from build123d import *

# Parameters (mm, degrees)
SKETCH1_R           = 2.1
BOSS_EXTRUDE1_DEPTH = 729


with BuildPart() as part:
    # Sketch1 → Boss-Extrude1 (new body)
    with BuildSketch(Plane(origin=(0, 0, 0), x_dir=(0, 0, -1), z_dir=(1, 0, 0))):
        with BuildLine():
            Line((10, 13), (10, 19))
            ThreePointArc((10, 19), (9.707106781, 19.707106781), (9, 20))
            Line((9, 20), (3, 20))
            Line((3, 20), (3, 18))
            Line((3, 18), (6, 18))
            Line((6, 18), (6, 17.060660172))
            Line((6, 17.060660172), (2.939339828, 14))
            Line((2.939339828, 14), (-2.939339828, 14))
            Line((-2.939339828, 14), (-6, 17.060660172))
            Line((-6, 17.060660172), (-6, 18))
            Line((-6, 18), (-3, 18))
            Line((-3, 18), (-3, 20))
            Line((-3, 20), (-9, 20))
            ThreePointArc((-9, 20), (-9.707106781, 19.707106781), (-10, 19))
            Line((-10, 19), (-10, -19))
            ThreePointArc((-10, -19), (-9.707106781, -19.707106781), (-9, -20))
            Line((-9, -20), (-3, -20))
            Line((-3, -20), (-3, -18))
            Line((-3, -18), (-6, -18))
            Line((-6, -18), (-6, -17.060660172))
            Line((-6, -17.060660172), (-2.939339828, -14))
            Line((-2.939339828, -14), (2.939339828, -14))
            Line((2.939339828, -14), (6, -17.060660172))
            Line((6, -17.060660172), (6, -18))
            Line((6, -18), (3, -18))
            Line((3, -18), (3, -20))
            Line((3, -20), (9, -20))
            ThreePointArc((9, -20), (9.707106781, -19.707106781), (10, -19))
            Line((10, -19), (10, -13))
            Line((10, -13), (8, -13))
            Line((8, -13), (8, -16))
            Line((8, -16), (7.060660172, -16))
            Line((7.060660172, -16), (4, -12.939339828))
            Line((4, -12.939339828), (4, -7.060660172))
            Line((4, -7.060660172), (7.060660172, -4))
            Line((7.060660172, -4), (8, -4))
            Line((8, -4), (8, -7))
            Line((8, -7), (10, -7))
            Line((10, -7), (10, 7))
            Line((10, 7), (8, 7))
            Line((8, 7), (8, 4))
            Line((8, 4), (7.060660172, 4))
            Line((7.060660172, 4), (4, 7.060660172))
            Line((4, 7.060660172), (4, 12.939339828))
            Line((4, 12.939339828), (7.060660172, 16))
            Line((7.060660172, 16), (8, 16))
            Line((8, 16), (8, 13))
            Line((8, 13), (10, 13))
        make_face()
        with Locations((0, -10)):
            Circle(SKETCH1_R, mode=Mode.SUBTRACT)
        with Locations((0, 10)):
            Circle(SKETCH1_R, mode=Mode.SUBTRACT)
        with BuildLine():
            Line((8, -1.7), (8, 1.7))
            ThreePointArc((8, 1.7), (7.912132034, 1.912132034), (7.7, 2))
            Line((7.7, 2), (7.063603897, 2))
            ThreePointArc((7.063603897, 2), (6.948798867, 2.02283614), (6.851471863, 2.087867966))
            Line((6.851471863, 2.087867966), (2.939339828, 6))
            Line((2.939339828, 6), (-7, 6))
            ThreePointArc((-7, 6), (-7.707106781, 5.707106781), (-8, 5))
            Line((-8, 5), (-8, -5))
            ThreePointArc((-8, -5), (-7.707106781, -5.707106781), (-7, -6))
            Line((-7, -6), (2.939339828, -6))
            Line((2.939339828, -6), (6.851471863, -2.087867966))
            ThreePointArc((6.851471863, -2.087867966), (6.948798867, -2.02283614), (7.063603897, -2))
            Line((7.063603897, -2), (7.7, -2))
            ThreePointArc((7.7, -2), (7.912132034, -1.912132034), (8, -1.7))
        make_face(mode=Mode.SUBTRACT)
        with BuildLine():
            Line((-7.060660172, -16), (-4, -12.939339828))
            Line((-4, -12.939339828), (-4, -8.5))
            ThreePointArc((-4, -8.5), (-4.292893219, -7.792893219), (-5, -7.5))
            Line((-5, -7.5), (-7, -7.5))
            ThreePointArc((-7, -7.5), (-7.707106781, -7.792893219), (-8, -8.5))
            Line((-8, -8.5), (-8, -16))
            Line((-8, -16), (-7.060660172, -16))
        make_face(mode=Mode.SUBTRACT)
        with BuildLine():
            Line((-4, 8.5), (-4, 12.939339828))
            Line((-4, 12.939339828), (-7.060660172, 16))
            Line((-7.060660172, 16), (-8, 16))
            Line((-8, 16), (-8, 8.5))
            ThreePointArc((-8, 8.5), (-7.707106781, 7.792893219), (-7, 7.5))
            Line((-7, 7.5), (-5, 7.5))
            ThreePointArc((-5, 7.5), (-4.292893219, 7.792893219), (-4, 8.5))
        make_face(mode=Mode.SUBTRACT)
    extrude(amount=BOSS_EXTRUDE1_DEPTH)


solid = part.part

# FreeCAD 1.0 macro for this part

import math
import FreeCAD as App
import Part
import Sketcher

doc = App.newDocument("Part")
body = doc.addObject("PartDesign::Body", "Body")

sketch1 = doc.addObject("Sketcher::SketchObject", "Sketch")
body.addObject(sketch1)
sketch1.AttachmentSupport = (doc.YZ_Plane, [""])
sketch1.MapMode = "FlatFace"
sketch1.addGeometry(Part.LineSegment(App.Vector(13, -10, 0), App.Vector(19, -10, 0)), False)
sketch1.addGeometry(Part.ArcOfCircle(Part.Circle(App.Vector(19, -9, 0), App.Vector(0, 0, 1), 1), math.radians(-90), math.radians(0)), False)
sketch1.addGeometry(Part.LineSegment(App.Vector(20, -9, 0), App.Vector(20, -3, 0)), False)
sketch1.addGeometry(Part.LineSegment(App.Vector(20, -3, 0), App.Vector(18, -3, 0)), False)
sketch1.addGeometry(Part.LineSegment(App.Vector(18, -3, 0), App.Vector(18, -6, 0)), False)
sketch1.addGeometry(Part.LineSegment(App.Vector(18, -6, 0), App.Vector(17.06, -6, 0)), False)
sketch1.addGeometry(Part.LineSegment(App.Vector(17.06, -6, 0), App.Vector(14, -2.94, 0)), False)
sketch1.addGeometry(Part.LineSegment(App.Vector(14, -2.94, 0), App.Vector(14, 2.94, 0)), False)
sketch1.addGeometry(Part.LineSegment(App.Vector(14, 2.94, 0), App.Vector(17.06, 6, 0)), False)
sketch1.addGeometry(Part.LineSegment(App.Vector(17.06, 6, 0), App.Vector(18, 6, 0)), False)
sketch1.addGeometry(Part.LineSegment(App.Vector(18, 6, 0), App.Vector(18, 3, 0)), False)
sketch1.addGeometry(Part.LineSegment(App.Vector(18, 3, 0), App.Vector(20, 3, 0)), False)
sketch1.addGeometry(Part.LineSegment(App.Vector(20, 3, 0), App.Vector(20, 9, 0)), False)
sketch1.addGeometry(Part.ArcOfCircle(Part.Circle(App.Vector(19, 9, 0), App.Vector(0, 0, 1), 1), math.radians(0), math.radians(90)), False)
sketch1.addGeometry(Part.LineSegment(App.Vector(19, 10, 0), App.Vector(-19, 10, 0)), False)
sketch1.addGeometry(Part.ArcOfCircle(Part.Circle(App.Vector(-19, 9, 0), App.Vector(0, 0, 1), 1), math.radians(90), math.radians(180)), False)
sketch1.addGeometry(Part.LineSegment(App.Vector(-20, 9, 0), App.Vector(-20, 3, 0)), False)
sketch1.addGeometry(Part.LineSegment(App.Vector(-20, 3, 0), App.Vector(-18, 3, 0)), False)
sketch1.addGeometry(Part.LineSegment(App.Vector(-18, 3, 0), App.Vector(-18, 6, 0)), False)
sketch1.addGeometry(Part.LineSegment(App.Vector(-18, 6, 0), App.Vector(-17.06, 6, 0)), False)
sketch1.addGeometry(Part.LineSegment(App.Vector(-17.06, 6, 0), App.Vector(-14, 2.94, 0)), False)
sketch1.addGeometry(Part.LineSegment(App.Vector(-14, 2.94, 0), App.Vector(-14, -2.94, 0)), False)
sketch1.addGeometry(Part.LineSegment(App.Vector(-14, -2.94, 0), App.Vector(-17.06, -6, 0)), False)
sketch1.addGeometry(Part.LineSegment(App.Vector(-17.06, -6, 0), App.Vector(-18, -6, 0)), False)
sketch1.addGeometry(Part.LineSegment(App.Vector(-18, -6, 0), App.Vector(-18, -3, 0)), False)
sketch1.addGeometry(Part.LineSegment(App.Vector(-18, -3, 0), App.Vector(-20, -3, 0)), False)
sketch1.addGeometry(Part.LineSegment(App.Vector(-20, -3, 0), App.Vector(-20, -9, 0)), False)
sketch1.addGeometry(Part.ArcOfCircle(Part.Circle(App.Vector(-19, -9, 0), App.Vector(0, 0, 1), 1), math.radians(-180), math.radians(-90)), False)
sketch1.addGeometry(Part.LineSegment(App.Vector(-19, -10, 0), App.Vector(-13, -10, 0)), False)
sketch1.addGeometry(Part.LineSegment(App.Vector(-13, -10, 0), App.Vector(-13, -8, 0)), False)
sketch1.addGeometry(Part.LineSegment(App.Vector(-13, -8, 0), App.Vector(-16, -8, 0)), False)
sketch1.addGeometry(Part.LineSegment(App.Vector(-16, -8, 0), App.Vector(-16, -7.06, 0)), False)
sketch1.addGeometry(Part.LineSegment(App.Vector(-16, -7.06, 0), App.Vector(-12.94, -4, 0)), False)
sketch1.addGeometry(Part.LineSegment(App.Vector(-12.94, -4, 0), App.Vector(-7.06, -4, 0)), False)
sketch1.addGeometry(Part.LineSegment(App.Vector(-7.06, -4, 0), App.Vector(-4, -7.06, 0)), False)
sketch1.addGeometry(Part.LineSegment(App.Vector(-4, -7.06, 0), App.Vector(-4, -8, 0)), False)
sketch1.addGeometry(Part.LineSegment(App.Vector(-4, -8, 0), App.Vector(-7, -8, 0)), False)
sketch1.addGeometry(Part.LineSegment(App.Vector(-7, -8, 0), App.Vector(-7, -10, 0)), False)
sketch1.addGeometry(Part.LineSegment(App.Vector(-7, -10, 0), App.Vector(7, -10, 0)), False)
sketch1.addGeometry(Part.LineSegment(App.Vector(7, -10, 0), App.Vector(7, -8, 0)), False)
sketch1.addGeometry(Part.LineSegment(App.Vector(7, -8, 0), App.Vector(4, -8, 0)), False)
sketch1.addGeometry(Part.LineSegment(App.Vector(4, -8, 0), App.Vector(4, -7.06, 0)), False)
sketch1.addGeometry(Part.LineSegment(App.Vector(4, -7.06, 0), App.Vector(7.06, -4, 0)), False)
sketch1.addGeometry(Part.LineSegment(App.Vector(7.06, -4, 0), App.Vector(12.94, -4, 0)), False)
sketch1.addGeometry(Part.LineSegment(App.Vector(12.94, -4, 0), App.Vector(16, -7.06, 0)), False)
sketch1.addGeometry(Part.LineSegment(App.Vector(16, -7.06, 0), App.Vector(16, -8, 0)), False)
sketch1.addGeometry(Part.LineSegment(App.Vector(16, -8, 0), App.Vector(13, -8, 0)), False)
sketch1.addGeometry(Part.LineSegment(App.Vector(13, -8, 0), App.Vector(13, -10, 0)), False)
sketch1.addGeometry(Part.LineSegment(App.Vector(-12.94, 4, 0), App.Vector(-16, 7.06, 0)), False)
sketch1.addGeometry(Part.LineSegment(App.Vector(-16, 7.06, 0), App.Vector(-16, 8, 0)), False)
sketch1.addGeometry(Part.LineSegment(App.Vector(-16, 8, 0), App.Vector(-8.5, 8, 0)), False)
sketch1.addGeometry(Part.ArcOfCircle(Part.Circle(App.Vector(-8.5, 7, 0), App.Vector(0, 0, 1), 1), math.radians(0), math.radians(90)), False)
sketch1.addGeometry(Part.LineSegment(App.Vector(-7.5, 7, 0), App.Vector(-7.5, 5, 0)), False)
sketch1.addGeometry(Part.ArcOfCircle(Part.Circle(App.Vector(-8.5, 5, 0), App.Vector(0, 0, 1), 1), math.radians(-90), math.radians(0)), False)
sketch1.addGeometry(Part.LineSegment(App.Vector(-8.5, 4, 0), App.Vector(-12.94, 4, 0)), False)
sketch1.addGeometry(Part.Circle(App.Vector(-10, 0, 0), App.Vector(0, 0, 1), 2.1), False)
sketch1.addGeometry(Part.LineSegment(App.Vector(12.94, 4, 0), App.Vector(8.5, 4, 0)), False)
sketch1.addGeometry(Part.ArcOfCircle(Part.Circle(App.Vector(8.5, 5, 0), App.Vector(0, 0, 1), 1), math.radians(-180), math.radians(-90)), False)
sketch1.addGeometry(Part.LineSegment(App.Vector(7.5, 5, 0), App.Vector(7.5, 7, 0)), False)
sketch1.addGeometry(Part.ArcOfCircle(Part.Circle(App.Vector(8.5, 7, 0), App.Vector(0, 0, 1), 1), math.radians(90), math.radians(180)), False)
sketch1.addGeometry(Part.LineSegment(App.Vector(8.5, 8, 0), App.Vector(16, 8, 0)), False)
sketch1.addGeometry(Part.LineSegment(App.Vector(16, 8, 0), App.Vector(16, 7.06, 0)), False)
sketch1.addGeometry(Part.LineSegment(App.Vector(16, 7.06, 0), App.Vector(12.94, 4, 0)), False)
sketch1.addGeometry(Part.LineSegment(App.Vector(1.7, -8, 0), App.Vector(-1.7, -8, 0)), False)
sketch1.addGeometry(Part.ArcOfCircle(Part.Circle(App.Vector(-1.7, -7.7, 0), App.Vector(0, 0, 1), 0.3), math.radians(-180), math.radians(-90)), False)
sketch1.addGeometry(Part.LineSegment(App.Vector(-2, -7.7, 0), App.Vector(-2, -7.06, 0)), False)
sketch1.addGeometry(Part.ArcOfCircle(Part.Circle(App.Vector(-2.3, -7.06, 0), App.Vector(0, 0, 1), 0.3), math.radians(0), math.radians(45)), False)
sketch1.addGeometry(Part.LineSegment(App.Vector(-2.09, -6.85, 0), App.Vector(-6, -2.94, 0)), False)
sketch1.addGeometry(Part.LineSegment(App.Vector(-6, -2.94, 0), App.Vector(-6, 7, 0)), False)
sketch1.addGeometry(Part.ArcOfCircle(Part.Circle(App.Vector(-5, 7, 0), App.Vector(0, 0, 1), 1), math.radians(90), math.radians(180)), False)
sketch1.addGeometry(Part.LineSegment(App.Vector(-5, 8, 0), App.Vector(5, 8, 0)), False)
sketch1.addGeometry(Part.ArcOfCircle(Part.Circle(App.Vector(5, 7, 0), App.Vector(0, 0, 1), 1), math.radians(0), math.radians(90)), False)
sketch1.addGeometry(Part.LineSegment(App.Vector(6, 7, 0), App.Vector(6, -2.94, 0)), False)
sketch1.addGeometry(Part.LineSegment(App.Vector(6, -2.94, 0), App.Vector(2.09, -6.85, 0)), False)
sketch1.addGeometry(Part.ArcOfCircle(Part.Circle(App.Vector(2.3, -7.06, 0), App.Vector(0, 0, 1), 0.3), math.radians(135), math.radians(180)), False)
sketch1.addGeometry(Part.LineSegment(App.Vector(2, -7.06, 0), App.Vector(2, -7.7, 0)), False)
sketch1.addGeometry(Part.ArcOfCircle(Part.Circle(App.Vector(1.7, -7.7, 0), App.Vector(0, 0, 1), 0.3), math.radians(-90), math.radians(0)), False)
sketch1.addGeometry(Part.Circle(App.Vector(10, 0, 0), App.Vector(0, 0, 1), 2.1), False)
sketch1.addConstraint(Sketcher.Constraint("Tangent", 0, 2, 1, 1))
sketch1.addConstraint(Sketcher.Constraint("Tangent", 1, 2, 2, 1))
sketch1.addConstraint(Sketcher.Constraint("Coincident", 2, 2, 3, 1))
sketch1.addConstraint(Sketcher.Constraint("Coincident", 3, 2, 4, 1))
sketch1.addConstraint(Sketcher.Constraint("Coincident", 4, 2, 5, 1))
sketch1.addConstraint(Sketcher.Constraint("Coincident", 5, 2, 6, 1))
sketch1.addConstraint(Sketcher.Constraint("Coincident", 6, 2, 7, 1))
sketch1.addConstraint(Sketcher.Constraint("Coincident", 7, 2, 8, 1))
sketch1.addConstraint(Sketcher.Constraint("Coincident", 8, 2, 9, 1))
sketch1.addConstraint(Sketcher.Constraint("Coincident", 9, 2, 10, 1))
sketch1.addConstraint(Sketcher.Constraint("Coincident", 10, 2, 11, 1))
sketch1.addConstraint(Sketcher.Constraint("Coincident", 11, 2, 12, 1))
sketch1.addConstraint(Sketcher.Constraint("Tangent", 12, 2, 13, 1))
sketch1.addConstraint(Sketcher.Constraint("Tangent", 13, 2, 14, 1))
sketch1.addConstraint(Sketcher.Constraint("Tangent", 14, 2, 15, 1))
sketch1.addConstraint(Sketcher.Constraint("Tangent", 15, 2, 16, 1))
sketch1.addConstraint(Sketcher.Constraint("Coincident", 16, 2, 17, 1))
sketch1.addConstraint(Sketcher.Constraint("Coincident", 17, 2, 18, 1))
sketch1.addConstraint(Sketcher.Constraint("Coincident", 18, 2, 19, 1))
sketch1.addConstraint(Sketcher.Constraint("Coincident", 19, 2, 20, 1))
sketch1.addConstraint(Sketcher.Constraint("Coincident", 20, 2, 21, 1))
sketch1.addConstraint(Sketcher.Constraint("Coincident", 21, 2, 22, 1))
sketch1.addConstraint(Sketcher.Constraint("Coincident", 22, 2, 23, 1))
sketch1.addConstraint(Sketcher.Constraint("Coincident", 23, 2, 24, 1))
sketch1.addConstraint(Sketcher.Constraint("Coincident", 24, 2, 25, 1))
sketch1.addConstraint(Sketcher.Constraint("Coincident", 25, 2, 26, 1))
sketch1.addConstraint(Sketcher.Constraint("Tangent", 26, 2, 27, 1))
sketch1.addConstraint(Sketcher.Constraint("Tangent", 27, 2, 28, 1))
sketch1.addConstraint(Sketcher.Constraint("Coincident", 28, 2, 29, 1))
sketch1.addConstraint(Sketcher.Constraint("Coincident", 29, 2, 30, 1))
sketch1.addConstraint(Sketcher.Constraint("Coincident", 30, 2, 31, 1))
sketch1.addConstraint(Sketcher.Constraint("Coincident", 31, 2, 32, 1))
sketch1.addConstraint(Sketcher.Constraint("Coincident", 32, 2, 33, 1))
sketch1.addConstraint(Sketcher.Constraint("Coincident", 33, 2, 34, 1))
sketch1.addConstraint(Sketcher.Constraint("Coincident", 34, 2, 35, 1))
sketch1.addConstraint(Sketcher.Constraint("Coincident", 35, 2, 36, 1))
sketch1.addConstraint(Sketcher.Constraint("Coincident", 36, 2, 37, 1))
sketch1.addConstraint(Sketcher.Constraint("Coincident", 37, 2, 38, 1))
sketch1.addConstraint(Sketcher.Constraint("Coincident", 38, 2, 39, 1))
sketch1.addConstraint(Sketcher.Constraint("Coincident", 39, 2, 40, 1))
sketch1.addConstraint(Sketcher.Constraint("Coincident", 40, 2, 41, 1))
sketch1.addConstraint(Sketcher.Constraint("Coincident", 41, 2, 42, 1))
sketch1.addConstraint(Sketcher.Constraint("Coincident", 42, 2, 43, 1))
sketch1.addConstraint(Sketcher.Constraint("Coincident", 43, 2, 44, 1))
sketch1.addConstraint(Sketcher.Constraint("Coincident", 44, 2, 45, 1))
sketch1.addConstraint(Sketcher.Constraint("Coincident", 45, 2, 46, 1))
sketch1.addConstraint(Sketcher.Constraint("Coincident", 46, 2, 47, 1))
sketch1.addConstraint(Sketcher.Constraint("Coincident", 47, 2, 0, 1))
sketch1.addConstraint(Sketcher.Constraint("Coincident", 48, 2, 49, 1))
sketch1.addConstraint(Sketcher.Constraint("Coincident", 49, 2, 50, 1))
sketch1.addConstraint(Sketcher.Constraint("Tangent", 50, 2, 51, 2))
sketch1.addConstraint(Sketcher.Constraint("Tangent", 51, 1, 52, 1))
sketch1.addConstraint(Sketcher.Constraint("Tangent", 52, 2, 53, 2))
sketch1.addConstraint(Sketcher.Constraint("Tangent", 53, 1, 54, 1))
sketch1.addConstraint(Sketcher.Constraint("Coincident", 54, 2, 48, 1))
sketch1.addConstraint(Sketcher.Constraint("Tangent", 56, 2, 57, 2))
sketch1.addConstraint(Sketcher.Constraint("Tangent", 57, 1, 58, 1))
sketch1.addConstraint(Sketcher.Constraint("Tangent", 58, 2, 59, 2))
sketch1.addConstraint(Sketcher.Constraint("Tangent", 59, 1, 60, 1))
sketch1.addConstraint(Sketcher.Constraint("Coincident", 60, 2, 61, 1))
sketch1.addConstraint(Sketcher.Constraint("Coincident", 61, 2, 62, 1))
sketch1.addConstraint(Sketcher.Constraint("Coincident", 62, 2, 56, 1))
sketch1.addConstraint(Sketcher.Constraint("Tangent", 63, 2, 64, 2))
sketch1.addConstraint(Sketcher.Constraint("Tangent", 64, 1, 65, 1))
sketch1.addConstraint(Sketcher.Constraint("Tangent", 65, 2, 66, 1))
sketch1.addConstraint(Sketcher.Constraint("Tangent", 66, 2, 67, 1))
sketch1.addConstraint(Sketcher.Constraint("Coincident", 67, 2, 68, 1))
sketch1.addConstraint(Sketcher.Constraint("Tangent", 68, 2, 69, 2))
sketch1.addConstraint(Sketcher.Constraint("Tangent", 69, 1, 70, 1))
sketch1.addConstraint(Sketcher.Constraint("Tangent", 70, 2, 71, 2))
sketch1.addConstraint(Sketcher.Constraint("Tangent", 71, 1, 72, 1))
sketch1.addConstraint(Sketcher.Constraint("Coincident", 72, 2, 73, 1))
sketch1.addConstraint(Sketcher.Constraint("Tangent", 73, 2, 74, 1))
sketch1.addConstraint(Sketcher.Constraint("Tangent", 74, 2, 75, 1))
sketch1.addConstraint(Sketcher.Constraint("Tangent", 75, 2, 76, 2))
sketch1.addConstraint(Sketcher.Constraint("Tangent", 76, 1, 63, 1))
sketch1.addConstraint(Sketcher.Constraint("Horizontal", 0))
sketch1.addConstraint(Sketcher.Constraint("Vertical", 2))
sketch1.addConstraint(Sketcher.Constraint("Horizontal", 3))
sketch1.addConstraint(Sketcher.Constraint("Vertical", 4))
sketch1.addConstraint(Sketcher.Constraint("Horizontal", 5))
sketch1.addConstraint(Sketcher.Constraint("Vertical", 7))
sketch1.addConstraint(Sketcher.Constraint("Horizontal", 9))
sketch1.addConstraint(Sketcher.Constraint("Vertical", 10))
sketch1.addConstraint(Sketcher.Constraint("Horizontal", 11))
sketch1.addConstraint(Sketcher.Constraint("Vertical", 12))
sketch1.addConstraint(Sketcher.Constraint("Horizontal", 14))
sketch1.addConstraint(Sketcher.Constraint("Vertical", 16))
sketch1.addConstraint(Sketcher.Constraint("Horizontal", 17))
sketch1.addConstraint(Sketcher.Constraint("Vertical", 18))
sketch1.addConstraint(Sketcher.Constraint("Horizontal", 19))
sketch1.addConstraint(Sketcher.Constraint("Vertical", 21))
sketch1.addConstraint(Sketcher.Constraint("Horizontal", 23))
sketch1.addConstraint(Sketcher.Constraint("Vertical", 24))
sketch1.addConstraint(Sketcher.Constraint("Horizontal", 25))
sketch1.addConstraint(Sketcher.Constraint("Vertical", 26))
sketch1.addConstraint(Sketcher.Constraint("Horizontal", 28))
sketch1.addConstraint(Sketcher.Constraint("Vertical", 29))
sketch1.addConstraint(Sketcher.Constraint("Horizontal", 30))
sketch1.addConstraint(Sketcher.Constraint("Vertical", 31))
sketch1.addConstraint(Sketcher.Constraint("Horizontal", 33))
sketch1.addConstraint(Sketcher.Constraint("Vertical", 35))
sketch1.addConstraint(Sketcher.Constraint("Horizontal", 36))
sketch1.addConstraint(Sketcher.Constraint("Vertical", 37))
sketch1.addConstraint(Sketcher.Constraint("Horizontal", 38))
sketch1.addConstraint(Sketcher.Constraint("Vertical", 39))
sketch1.addConstraint(Sketcher.Constraint("Horizontal", 40))
sketch1.addConstraint(Sketcher.Constraint("Vertical", 41))
sketch1.addConstraint(Sketcher.Constraint("Horizontal", 43))
sketch1.addConstraint(Sketcher.Constraint("Vertical", 45))
sketch1.addConstraint(Sketcher.Constraint("Horizontal", 46))
sketch1.addConstraint(Sketcher.Constraint("Vertical", 47))
sketch1.addConstraint(Sketcher.Constraint("Vertical", 49))
sketch1.addConstraint(Sketcher.Constraint("Horizontal", 50))
sketch1.addConstraint(Sketcher.Constraint("Vertical", 52))
sketch1.addConstraint(Sketcher.Constraint("Horizontal", 54))
sketch1.addConstraint(Sketcher.Constraint("Horizontal", 56))
sketch1.addConstraint(Sketcher.Constraint("Vertical", 58))
sketch1.addConstraint(Sketcher.Constraint("Horizontal", 60))
sketch1.addConstraint(Sketcher.Constraint("Vertical", 61))
sketch1.addConstraint(Sketcher.Constraint("Horizontal", 63))
sketch1.addConstraint(Sketcher.Constraint("Vertical", 65))
sketch1.addConstraint(Sketcher.Constraint("Vertical", 68))
sketch1.addConstraint(Sketcher.Constraint("Horizontal", 70))
sketch1.addConstraint(Sketcher.Constraint("Vertical", 72))
sketch1.addConstraint(Sketcher.Constraint("Vertical", 75))
sketch1.addConstraint(Sketcher.Constraint("Equal", 1, 13))
sketch1.addConstraint(Sketcher.Constraint("Equal", 13, 15))
sketch1.addConstraint(Sketcher.Constraint("Equal", 15, 27))
sketch1.addConstraint(Sketcher.Constraint("Equal", 27, 51))
sketch1.addConstraint(Sketcher.Constraint("Equal", 51, 53))
sketch1.addConstraint(Sketcher.Constraint("Equal", 53, 57))
sketch1.addConstraint(Sketcher.Constraint("Equal", 57, 59))
sketch1.addConstraint(Sketcher.Constraint("Equal", 64, 66))
sketch1.addConstraint(Sketcher.Constraint("Equal", 59, 69))
sketch1.addConstraint(Sketcher.Constraint("Equal", 69, 71))
sketch1.addConstraint(Sketcher.Constraint("Equal", 66, 74))
sketch1.addConstraint(Sketcher.Constraint("Equal", 74, 76))
sketch1.addConstraint(Sketcher.Constraint("Equal", 55, 77))
sketch1.addConstraint(Sketcher.Constraint("Symmetric", 1, 3, 15, 3, -1, 1))
sketch1.addConstraint(Sketcher.Constraint("Symmetric", 13, 3, 27, 3, -1, 1))
sketch1.addConstraint(Sketcher.Constraint("Symmetric", 55, 3, 77, 3, -1, 1))
sketch1.addConstraint(Sketcher.Constraint("Symmetric", 3, 2, 17, 2, -1, 1))
sketch1.addConstraint(Sketcher.Constraint("Symmetric", 5, 2, 19, 2, -1, 1))
sketch1.addConstraint(Sketcher.Constraint("Symmetric", 6, 2, 20, 2, -1, 1))
sketch1.addConstraint(Sketcher.Constraint("Symmetric", 8, 2, 22, 2, -1, 1))
sketch1.addConstraint(Sketcher.Constraint("Symmetric", 10, 2, 24, 2, -1, 1))
sketch1.addConstraint(Sketcher.Constraint("Symmetric", 44, 2, 48, 2, -1, 1))
sketch1.addConstraint(Sketcher.Constraint("Symmetric", 43, 2, 54, 2, -1, 1))
sketch1.addConstraint(Sketcher.Constraint("Symmetric", 30, 2, 60, 2, -1, 1))
sketch1.addConstraint(Sketcher.Constraint("Symmetric", 32, 2, 62, 2, -1, 1))
sketch1.addConstraint(Sketcher.Constraint("Symmetric", 53, 3, 57, 3, -2))
sketch1.addConstraint(Sketcher.Constraint("Symmetric", 66, 3, 74, 3, -2))
sketch1.addConstraint(Sketcher.Constraint("Symmetric", 11, 2, 16, 2, -2))
sketch1.addConstraint(Sketcher.Constraint("Symmetric", 9, 2, 18, 2, -2))
sketch1.addConstraint(Sketcher.Constraint("Symmetric", 36, 2, 39, 2, -2))
sketch1.addConstraint(Sketcher.Constraint("Symmetric", 34, 2, 41, 2, -2))
sketch1.addConstraint(Sketcher.Constraint("Symmetric", 31, 2, 44, 2, -2))
sketch1.addConstraint(Sketcher.Constraint("Symmetric", 29, 2, 46, 2, -2))
sketch1.addConstraint(Sketcher.Constraint("Symmetric", 67, 2, 72, 2, -2))
sketch1.addConstraint(Sketcher.Constraint("PointOnObject", 55, 3, -1))
sketch1.addConstraint(Sketcher.Constraint("Perpendicular", 6, 8))
sketch1.addConstraint(Sketcher.Constraint("Perpendicular", 20, 22))
sketch1.addConstraint(Sketcher.Constraint("Parallel", 22, 32))
sketch1.addConstraint(Sketcher.Constraint("Perpendicular", 32, 34))
sketch1.addConstraint(Sketcher.Constraint("Perpendicular", 34, 42))
sketch1.addConstraint(Sketcher.Constraint("Perpendicular", 42, 44))
sketch1.addConstraint(Sketcher.Constraint("Perpendicular", 48, 62))
sketch1.addConstraint(Sketcher.Constraint("Perpendicular", 62, 67))
sketch1.addConstraint(Sketcher.Constraint("Perpendicular", 67, 73))
sketch1.addConstraint(Sketcher.Constraint("Horizontal", 51, 3, 59, 3))
sketch1.addConstraint(Sketcher.Constraint("Horizontal", 59, 3, 69, 3))
sketch1.addConstraint(Sketcher.Constraint("Horizontal", 7, 2, 20, 2))
sketch1.addConstraint(Sketcher.Constraint("Horizontal", 31, 2, 34, 2))
sketch1.addConstraint(Sketcher.Constraint("Horizontal", 30, 2, 35, 2))
sketch1.addConstraint(Sketcher.Constraint("Horizontal", 28, 2, 37, 2))
sketch1.addConstraint(Sketcher.Constraint("Horizontal", 46, 2, 63, 2))
sketch1.addConstraint(Sketcher.Constraint("Horizontal", 21, 2, 67, 2))
sketch1.addConstraint(Sketcher.Constraint("Equal", 30, 36))
sketch1.addConstraint(Sketcher.Constraint("Equal", 28, 2))
sketch1.addConstraint(Sketcher.Constraint("Equal", 46, 4))
sketch1.addConstraint(Sketcher.Constraint("Equal", 43, 7))
sketch1.addConstraint(Sketcher.Constraint("Equal", 25, 29))
sketch1.addConstraint(Sketcher.Constraint("Equal", 23, 31))
sketch1.addConstraint(Sketcher.Constraint("Equal", 47, 52))
sketch1.addConstraint(Sketcher.Constraint("Equal", 22, 32))
sketch1.addConstraint(Sketcher.Constraint("Radius", 1, 1.0))
sketch1.addConstraint(Sketcher.Constraint("Diameter", 55, 4.2))
sketch1.addConstraint(Sketcher.Constraint("Radius", 64, 0.3))
sketch1.addConstraint(Sketcher.Constraint("DistanceX", 0, 1, 0, 2, 6.0))
sketch1.addConstraint(Sketcher.Constraint("DistanceX", 3, 2, 3, 1, 2.0))
sketch1.addConstraint(Sketcher.Constraint("DistanceX", 14, 2, 14, 1, 38.0))
sketch1.addConstraint(Sketcher.Constraint("DistanceX", 30, 2, 30, 1, 3.0))
sketch1.addConstraint(Sketcher.Constraint("DistanceX", 38, 1, 38, 2, 14.0))
sketch1.addConstraint(Sketcher.Constraint("DistanceX", 70, 1, 70, 2, 10.0))
sketch1.addConstraint(Sketcher.Constraint("DistanceX", 50, 1, 50, 2, 7.5))
sketch1.addConstraint(Sketcher.Constraint("DistanceX", 63, 2, 63, 1, 3.4))
sketch1.addConstraint(Sketcher.Constraint("DistanceX", 55, 3, -1, 1, 10.0))
sketch1.addConstraint(Sketcher.Constraint("DistanceX", 5, 2, 5, 1, 0.93934))
pad1 = doc.addObject("PartDesign::Pad", "Pad")
body.addObject(pad1)
pad1.Profile = sketch1
pad1.Length = 729

doc.recompute()
